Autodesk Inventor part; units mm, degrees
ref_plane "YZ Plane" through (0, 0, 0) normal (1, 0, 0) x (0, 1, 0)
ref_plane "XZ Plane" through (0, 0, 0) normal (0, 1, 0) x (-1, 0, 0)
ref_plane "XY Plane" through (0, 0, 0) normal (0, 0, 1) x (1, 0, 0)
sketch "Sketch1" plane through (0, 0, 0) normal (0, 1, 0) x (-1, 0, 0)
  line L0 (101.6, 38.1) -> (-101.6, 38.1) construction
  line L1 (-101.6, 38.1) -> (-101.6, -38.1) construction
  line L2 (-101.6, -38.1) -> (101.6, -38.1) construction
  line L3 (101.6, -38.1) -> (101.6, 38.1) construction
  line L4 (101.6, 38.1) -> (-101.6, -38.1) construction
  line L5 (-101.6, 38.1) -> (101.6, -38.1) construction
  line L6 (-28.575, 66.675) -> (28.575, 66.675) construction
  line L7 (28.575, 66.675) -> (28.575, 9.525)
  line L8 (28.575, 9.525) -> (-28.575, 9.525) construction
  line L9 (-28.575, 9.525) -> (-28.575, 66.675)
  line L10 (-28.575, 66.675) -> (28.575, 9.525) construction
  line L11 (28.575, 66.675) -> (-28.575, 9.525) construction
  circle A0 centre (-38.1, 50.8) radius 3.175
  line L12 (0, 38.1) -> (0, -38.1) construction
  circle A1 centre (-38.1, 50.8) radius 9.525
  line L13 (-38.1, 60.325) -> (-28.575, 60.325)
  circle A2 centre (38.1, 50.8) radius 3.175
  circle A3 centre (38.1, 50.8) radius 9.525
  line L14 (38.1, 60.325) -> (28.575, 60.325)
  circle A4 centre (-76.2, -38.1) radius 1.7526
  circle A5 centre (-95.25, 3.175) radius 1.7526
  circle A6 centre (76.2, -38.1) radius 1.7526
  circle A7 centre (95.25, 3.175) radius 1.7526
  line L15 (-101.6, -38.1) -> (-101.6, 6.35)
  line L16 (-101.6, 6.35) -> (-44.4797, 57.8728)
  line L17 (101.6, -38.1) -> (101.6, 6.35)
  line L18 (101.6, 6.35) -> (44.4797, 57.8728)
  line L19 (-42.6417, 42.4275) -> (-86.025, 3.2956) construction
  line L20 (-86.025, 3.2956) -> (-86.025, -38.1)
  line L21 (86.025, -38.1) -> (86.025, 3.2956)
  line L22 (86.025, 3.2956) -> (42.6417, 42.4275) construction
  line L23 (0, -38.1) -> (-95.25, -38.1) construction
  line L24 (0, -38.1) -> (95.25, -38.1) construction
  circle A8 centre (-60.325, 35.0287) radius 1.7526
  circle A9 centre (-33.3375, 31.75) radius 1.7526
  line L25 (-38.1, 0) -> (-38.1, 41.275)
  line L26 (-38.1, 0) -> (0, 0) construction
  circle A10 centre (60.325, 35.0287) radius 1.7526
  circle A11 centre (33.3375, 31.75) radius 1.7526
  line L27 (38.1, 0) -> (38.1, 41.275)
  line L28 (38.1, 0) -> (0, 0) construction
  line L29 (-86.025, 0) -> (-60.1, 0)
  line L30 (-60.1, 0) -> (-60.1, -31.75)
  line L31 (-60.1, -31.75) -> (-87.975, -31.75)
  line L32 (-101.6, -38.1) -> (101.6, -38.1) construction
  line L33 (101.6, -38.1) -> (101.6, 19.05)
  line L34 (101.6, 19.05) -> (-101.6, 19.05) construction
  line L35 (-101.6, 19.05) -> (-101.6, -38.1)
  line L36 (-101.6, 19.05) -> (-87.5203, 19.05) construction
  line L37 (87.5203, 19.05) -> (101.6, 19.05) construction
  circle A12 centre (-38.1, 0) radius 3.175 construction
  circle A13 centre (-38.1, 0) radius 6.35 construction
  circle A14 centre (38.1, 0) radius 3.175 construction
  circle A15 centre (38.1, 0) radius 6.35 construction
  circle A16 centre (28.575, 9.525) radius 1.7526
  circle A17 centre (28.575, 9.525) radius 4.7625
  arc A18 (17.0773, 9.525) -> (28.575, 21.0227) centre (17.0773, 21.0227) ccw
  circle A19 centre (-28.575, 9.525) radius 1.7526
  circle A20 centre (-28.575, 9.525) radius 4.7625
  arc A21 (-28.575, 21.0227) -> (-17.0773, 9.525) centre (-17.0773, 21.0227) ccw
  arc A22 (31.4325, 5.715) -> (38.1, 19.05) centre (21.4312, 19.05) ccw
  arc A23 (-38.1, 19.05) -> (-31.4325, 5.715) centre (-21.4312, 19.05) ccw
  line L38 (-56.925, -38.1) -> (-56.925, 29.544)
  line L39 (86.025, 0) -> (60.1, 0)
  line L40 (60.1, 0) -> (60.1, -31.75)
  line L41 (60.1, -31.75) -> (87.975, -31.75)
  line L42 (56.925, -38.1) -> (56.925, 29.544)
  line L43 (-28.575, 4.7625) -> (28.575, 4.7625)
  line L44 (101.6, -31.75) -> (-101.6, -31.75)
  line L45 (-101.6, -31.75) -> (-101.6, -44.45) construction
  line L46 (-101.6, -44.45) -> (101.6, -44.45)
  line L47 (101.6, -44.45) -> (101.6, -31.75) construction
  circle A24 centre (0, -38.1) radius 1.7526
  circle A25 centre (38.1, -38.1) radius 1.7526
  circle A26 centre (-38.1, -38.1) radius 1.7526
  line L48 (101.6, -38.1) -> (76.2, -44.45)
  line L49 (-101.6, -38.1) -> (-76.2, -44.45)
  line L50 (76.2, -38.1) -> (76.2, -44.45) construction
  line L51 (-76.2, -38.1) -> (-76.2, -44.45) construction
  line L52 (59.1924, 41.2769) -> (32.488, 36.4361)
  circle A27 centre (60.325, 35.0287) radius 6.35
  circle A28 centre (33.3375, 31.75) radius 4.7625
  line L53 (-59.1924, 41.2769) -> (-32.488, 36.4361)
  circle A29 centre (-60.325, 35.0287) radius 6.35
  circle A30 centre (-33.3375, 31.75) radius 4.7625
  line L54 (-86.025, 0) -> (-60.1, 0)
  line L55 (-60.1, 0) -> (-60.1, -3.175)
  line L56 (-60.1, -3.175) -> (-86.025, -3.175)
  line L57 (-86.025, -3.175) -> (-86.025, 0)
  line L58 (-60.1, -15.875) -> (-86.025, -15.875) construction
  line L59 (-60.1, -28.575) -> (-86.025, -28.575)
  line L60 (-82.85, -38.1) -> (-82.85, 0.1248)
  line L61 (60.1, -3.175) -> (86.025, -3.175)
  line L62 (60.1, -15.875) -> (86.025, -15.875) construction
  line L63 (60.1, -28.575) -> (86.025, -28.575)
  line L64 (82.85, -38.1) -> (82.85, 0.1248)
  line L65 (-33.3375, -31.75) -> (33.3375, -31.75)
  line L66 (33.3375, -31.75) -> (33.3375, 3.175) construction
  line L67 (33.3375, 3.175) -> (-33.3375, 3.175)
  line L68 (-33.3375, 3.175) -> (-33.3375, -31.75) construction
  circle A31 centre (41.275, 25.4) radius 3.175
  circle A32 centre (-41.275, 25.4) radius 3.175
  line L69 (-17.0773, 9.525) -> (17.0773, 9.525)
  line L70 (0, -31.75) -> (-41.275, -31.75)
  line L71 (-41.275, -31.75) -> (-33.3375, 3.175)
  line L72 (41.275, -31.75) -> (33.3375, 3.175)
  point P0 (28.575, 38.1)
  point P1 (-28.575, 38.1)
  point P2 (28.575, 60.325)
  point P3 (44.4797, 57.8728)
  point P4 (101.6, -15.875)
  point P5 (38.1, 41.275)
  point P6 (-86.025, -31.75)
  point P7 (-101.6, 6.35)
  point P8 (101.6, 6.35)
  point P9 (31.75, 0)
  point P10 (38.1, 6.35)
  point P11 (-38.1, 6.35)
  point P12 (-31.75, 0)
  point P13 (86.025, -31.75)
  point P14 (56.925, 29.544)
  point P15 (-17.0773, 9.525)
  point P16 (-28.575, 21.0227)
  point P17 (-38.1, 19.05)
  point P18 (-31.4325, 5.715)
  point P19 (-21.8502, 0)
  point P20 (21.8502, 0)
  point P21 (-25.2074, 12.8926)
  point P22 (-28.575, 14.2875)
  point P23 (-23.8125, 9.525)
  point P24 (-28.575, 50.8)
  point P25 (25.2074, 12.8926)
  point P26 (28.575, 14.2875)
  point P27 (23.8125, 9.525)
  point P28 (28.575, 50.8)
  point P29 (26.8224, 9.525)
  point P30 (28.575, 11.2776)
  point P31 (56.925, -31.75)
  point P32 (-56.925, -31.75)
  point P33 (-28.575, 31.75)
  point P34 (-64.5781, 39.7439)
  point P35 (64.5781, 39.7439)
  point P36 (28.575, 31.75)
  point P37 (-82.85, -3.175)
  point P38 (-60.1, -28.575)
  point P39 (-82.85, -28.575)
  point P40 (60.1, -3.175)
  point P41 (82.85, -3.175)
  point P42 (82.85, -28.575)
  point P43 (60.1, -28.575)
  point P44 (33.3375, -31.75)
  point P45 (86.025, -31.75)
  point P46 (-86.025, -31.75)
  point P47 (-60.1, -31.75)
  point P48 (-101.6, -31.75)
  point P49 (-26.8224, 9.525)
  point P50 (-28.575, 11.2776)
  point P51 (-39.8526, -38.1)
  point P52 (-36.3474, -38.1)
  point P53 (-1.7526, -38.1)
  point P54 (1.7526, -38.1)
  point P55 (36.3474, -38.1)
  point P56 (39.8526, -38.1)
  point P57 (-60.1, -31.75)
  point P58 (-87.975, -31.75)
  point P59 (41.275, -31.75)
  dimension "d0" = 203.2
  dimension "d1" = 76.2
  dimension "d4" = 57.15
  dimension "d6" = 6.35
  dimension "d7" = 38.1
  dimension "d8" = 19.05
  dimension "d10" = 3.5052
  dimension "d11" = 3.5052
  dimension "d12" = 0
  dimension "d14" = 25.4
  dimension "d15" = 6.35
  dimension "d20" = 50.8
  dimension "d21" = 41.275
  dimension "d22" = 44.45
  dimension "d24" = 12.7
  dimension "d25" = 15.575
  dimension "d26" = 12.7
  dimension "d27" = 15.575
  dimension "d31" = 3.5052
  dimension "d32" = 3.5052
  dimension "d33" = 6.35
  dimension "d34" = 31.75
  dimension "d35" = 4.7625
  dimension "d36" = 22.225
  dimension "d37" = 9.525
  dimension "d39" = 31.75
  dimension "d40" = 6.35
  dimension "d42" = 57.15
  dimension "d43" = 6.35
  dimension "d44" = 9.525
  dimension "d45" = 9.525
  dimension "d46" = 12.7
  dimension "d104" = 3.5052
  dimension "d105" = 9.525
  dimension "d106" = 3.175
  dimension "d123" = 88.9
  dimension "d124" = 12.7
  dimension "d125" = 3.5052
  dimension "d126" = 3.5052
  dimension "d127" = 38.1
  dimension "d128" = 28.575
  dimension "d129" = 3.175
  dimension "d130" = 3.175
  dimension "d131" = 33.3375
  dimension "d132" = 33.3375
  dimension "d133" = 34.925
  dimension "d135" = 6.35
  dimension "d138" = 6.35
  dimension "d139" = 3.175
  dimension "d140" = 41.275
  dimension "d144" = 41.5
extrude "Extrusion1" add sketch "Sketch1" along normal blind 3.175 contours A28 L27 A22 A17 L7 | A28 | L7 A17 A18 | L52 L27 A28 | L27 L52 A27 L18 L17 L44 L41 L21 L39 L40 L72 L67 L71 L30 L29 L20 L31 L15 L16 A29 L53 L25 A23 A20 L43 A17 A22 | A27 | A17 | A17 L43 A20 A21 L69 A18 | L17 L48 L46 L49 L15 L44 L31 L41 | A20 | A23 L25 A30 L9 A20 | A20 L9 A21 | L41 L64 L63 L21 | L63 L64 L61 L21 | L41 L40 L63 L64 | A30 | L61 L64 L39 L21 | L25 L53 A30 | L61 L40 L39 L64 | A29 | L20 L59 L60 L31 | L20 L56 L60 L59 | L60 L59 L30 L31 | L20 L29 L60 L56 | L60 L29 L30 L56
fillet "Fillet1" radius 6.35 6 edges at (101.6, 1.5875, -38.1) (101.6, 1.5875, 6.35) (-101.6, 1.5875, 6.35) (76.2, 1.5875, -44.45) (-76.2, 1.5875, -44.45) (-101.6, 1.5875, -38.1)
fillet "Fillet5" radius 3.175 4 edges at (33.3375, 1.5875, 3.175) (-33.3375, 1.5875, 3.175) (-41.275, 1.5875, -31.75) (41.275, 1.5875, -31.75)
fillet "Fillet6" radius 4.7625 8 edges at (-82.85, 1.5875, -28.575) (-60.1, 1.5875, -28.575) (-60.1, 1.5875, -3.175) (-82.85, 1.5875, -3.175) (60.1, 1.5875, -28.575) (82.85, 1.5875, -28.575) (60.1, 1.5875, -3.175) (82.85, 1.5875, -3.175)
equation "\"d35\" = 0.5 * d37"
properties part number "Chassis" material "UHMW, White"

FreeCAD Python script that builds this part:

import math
import FreeCAD as App
import Part
import Sketcher
from FreeCAD import Vector
Q = App.Units.Quantity


def edges_at(feature, points):
    """Names of the edges that pass closest to the given points."""
    edges = feature.Shape.Edges
    near = lambda p: min(range(len(edges)), key=lambda i: edges[i].distToShape(Part.Vertex(*p))[0])
    return sorted({f"Edge{near(p) + 1}" for p in points})


def add_polygon(sketch, points):
    """Adds a closed chain of lines whose ends are joined by coincident constraints."""
    first, n = sketch.GeometryCount, len(points)
    for a, b in zip(points, points[1:] + points[:1]):
        sketch.addGeometry(Part.LineSegment(App.Vector(*a, 0), App.Vector(*b, 0)), False)
    for i in range(n):
        sketch.addConstraint(Sketcher.Constraint("Coincident", first + i, 2, first + (i + 1) % n, 1))

doc = App.newDocument("Part")
params = doc.addObject("Spreadsheet::Sheet", "Params")
for row, (alias, value) in enumerate([
    ("sketch1_diameter", "0.25 in"),
    ("sketch1_height", "1 in"),
    ("sketch1_radius", "0.25 in"),
    ("sketch1_diameter2", "0.138 in"),
    ("sketch1_radius2", "0.1875 in"),
    ("pad1_length", "0.125 in"),
    ("fillet_radius", "0.25 in"),
    ("fillet2_radius", "0.125 in"),
    ("fillet3_radius", "0.1875 in"),
], start=1):
    params.set(f"A{row}", alias)
    params.set(f"B{row}", "=" + value)
    params.setAlias(f"B{row}", alias)

body = doc.addObject("PartDesign::Body", "Body")

# Sketch on XZ plane
sketch1 = body.newObject("Sketcher::SketchObject", "Sketch")
sketch1.AttachmentSupport = (doc.getObject("XZ_Plane"), [""])
sketch1.MapMode = "FlatFace"
sketch1.addGeometry(Part.LineSegment(Vector(-28.6, 31.8, 0), Vector(-28.6, 21, 0)), False)  # 0
sketch1.addGeometry(Part.ArcOfCircle(Part.Circle(Vector(-17.1, 21, 0), Vector(0, 0, 1), 11.5), math.radians(180), math.radians(270)), False)  # 1
sketch1.addGeometry(Part.LineSegment(Vector(-17.1, 9.5, 0), Vector(17.1, 9.5, 0)), False)  # 2
sketch1.addGeometry(Part.ArcOfCircle(Part.Circle(Vector(17.1, 21, 0), Vector(0, 0, 1), 11.5), math.radians(-90), math.radians(0)), False)  # 3
sketch1.addGeometry(Part.LineSegment(Vector(28.6, 21, 0), Vector(28.6, 31.8, 0)), False)  # 4
sketch1.addGeometry(Part.ArcOfCircle(Part.Circle(Vector(33.3, 31.8, 0), Vector(0, 0, 1), 4.8), math.radians(100), math.radians(180)), False)  # 5
sketch1.addGeometry(Part.LineSegment(Vector(32.5, 36.4, 0), Vector(59.2, 41.3, 0)), False)  # 6
sketch1.addGeometry(Part.ArcOfCircle(Part.Circle(Vector(60.3, 35, 0), Vector(0, 0, 1), 6.3), math.radians(48), math.radians(100)), False)  # 7
sketch1.addGeometry(Part.LineSegment(Vector(64.6, 39.7, 0), Vector(101.6, 6.3, 0)), False)  # 8
sketch1.addGeometry(Part.LineSegment(Vector(101.6, 6.3, 0), Vector(101.6, -38.1, 0)), False)  # 9
sketch1.addGeometry(Part.LineSegment(Vector(101.6, -38.1, 0), Vector(76.2, -44.5, 0)), False)  # 10
sketch1.addGeometry(Part.LineSegment(Vector(76.2, -44.5, 0), Vector(-76.2, -44.5, 0)), False)  # 11
sketch1.addGeometry(Part.LineSegment(Vector(-76.2, -44.5, 0), Vector(-101.6, -38.1, 0)), False)  # 12
sketch1.addGeometry(Part.LineSegment(Vector(-101.6, -38.1, 0), Vector(-101.6, 6.3, 0)), False)  # 13
sketch1.addGeometry(Part.LineSegment(Vector(-101.6, 6.3, 0), Vector(-64.6, 39.7, 0)), False)  # 14
sketch1.addGeometry(Part.ArcOfCircle(Part.Circle(Vector(-60.3, 35, 0), Vector(0, 0, 1), 6.3), math.radians(80), math.radians(132)), False)  # 15
sketch1.addGeometry(Part.LineSegment(Vector(-59.2, 41.3, 0), Vector(-32.5, 36.4, 0)), False)  # 16
sketch1.addGeometry(Part.ArcOfCircle(Part.Circle(Vector(-33.3, 31.8, 0), Vector(0, 0, 1), 4.8), math.radians(0), math.radians(80)), False)  # 17
sketch1.addGeometry(Part.Circle(Vector(-33.3, 31.8, 0), Vector(0, 0, 1), 1.8), False)  # 18
add_polygon(sketch1, [(-60.1, -28.6), (-60.1, -3.2), (-82.8, -3.2), (-82.8, -28.6)])  # lines 19-22
add_polygon(sketch1, [(-33.3, 3.2), (-41.3, -31.8), (41.3, -31.8), (33.3, 3.2)])  # lines 23-26
add_polygon(sketch1, [(60.1, -3.2), (60.1, -28.6), (82.8, -28.6), (82.8, -3.2)])  # lines 27-30
sketch1.addGeometry(Part.Circle(Vector(41.3, 25.4, 0), Vector(0, 0, 1), 3.2), False)  # 31
sketch1.addGeometry(Part.Circle(Vector(-41.3, 25.4, 0), Vector(0, 0, 1), 3.2), False)  # 32
sketch1.addGeometry(Part.Circle(Vector(95.2, 3.2, 0), Vector(0, 0, 1), 1.8), False)  # 33
sketch1.addGeometry(Part.Circle(Vector(-95.2, 3.2, 0), Vector(0, 0, 1), 1.8), False)  # 34
sketch1.addGeometry(Part.Circle(Vector(-28.6, 9.5, 0), Vector(0, 0, 1), 1.8), False)  # 35
sketch1.addGeometry(Part.Circle(Vector(-60.3, 35, 0), Vector(0, 0, 1), 1.8), False)  # 36
sketch1.addGeometry(Part.Circle(Vector(-38.1, -38.1, 0), Vector(0, 0, 1), 1.8), False)  # 37
sketch1.addGeometry(Part.Circle(Vector(-76.2, -38.1, 0), Vector(0, 0, 1), 1.8), False)  # 38
sketch1.addGeometry(Part.Circle(Vector(76.2, -38.1, 0), Vector(0, 0, 1), 1.8), False)  # 39
sketch1.addGeometry(Part.Circle(Vector(38.1, -38.1, 0), Vector(0, 0, 1), 1.8), False)  # 40
sketch1.addGeometry(Part.Circle(Vector(0, -38.1, 0), Vector(0, 0, 1), 1.8), False)  # 41
sketch1.addGeometry(Part.Circle(Vector(60.3, 35, 0), Vector(0, 0, 1), 1.8), False)  # 42
sketch1.addGeometry(Part.Circle(Vector(28.6, 9.5, 0), Vector(0, 0, 1), 1.8), False)  # 43
sketch1.addGeometry(Part.Circle(Vector(33.3, 31.8, 0), Vector(0, 0, 1), 1.8), False)  # 44
sketch1.addConstraint([
    Sketcher.Constraint("Tangent", 0, 2, 1, 1),
    Sketcher.Constraint("Tangent", 1, 2, 2, 1),
    Sketcher.Constraint("Tangent", 2, 2, 3, 1),
    Sketcher.Constraint("Tangent", 3, 2, 4, 1),
    Sketcher.Constraint("Tangent", 4, 2, 5, 2),
    Sketcher.Constraint("Tangent", 5, 1, 6, 1),
    Sketcher.Constraint("Tangent", 6, 2, 7, 2),
    Sketcher.Constraint("Tangent", 7, 1, 8, 1),
    Sketcher.Constraint("Coincident", 8, 2, 9, 1),
    Sketcher.Constraint("Coincident", 9, 2, 10, 1),
    Sketcher.Constraint("Coincident", 10, 2, 11, 1),
    Sketcher.Constraint("Coincident", 11, 2, 12, 1),
    Sketcher.Constraint("Coincident", 12, 2, 13, 1),
    Sketcher.Constraint("Coincident", 13, 2, 14, 1),
    Sketcher.Constraint("Tangent", 14, 2, 15, 2),
    Sketcher.Constraint("Tangent", 15, 1, 16, 1),
    Sketcher.Constraint("Tangent", 16, 2, 17, 2),
    Sketcher.Constraint("Tangent", 17, 1, 0, 1),
    Sketcher.Constraint("Vertical", 0),
    Sketcher.Constraint("Horizontal", 2),
    Sketcher.Constraint("Vertical", 4),
    Sketcher.Constraint("Vertical", 9),
    Sketcher.Constraint("Horizontal", 11),
    Sketcher.Constraint("Vertical", 13),
    Sketcher.Constraint("Vertical", 19),
    Sketcher.Constraint("Horizontal", 20),
    Sketcher.Constraint("Vertical", 21),
    Sketcher.Constraint("Horizontal", 22),
    Sketcher.Constraint("Horizontal", 24),
    Sketcher.Constraint("Horizontal", 26),
    Sketcher.Constraint("Vertical", 27),
    Sketcher.Constraint("Horizontal", 28),
    Sketcher.Constraint("Vertical", 29),
    Sketcher.Constraint("Horizontal", 30),
    Sketcher.Constraint("Coincident", 18, 3, 17, 3),
    Sketcher.Constraint("Coincident", 36, 3, 15, 3),
    Sketcher.Constraint("Coincident", 42, 3, 7, 3),
    Sketcher.Constraint("Coincident", 44, 3, 5, 3),
    Sketcher.Constraint("Equal", 1, 3),
    Sketcher.Constraint("Equal", 7, 15),
    Sketcher.Constraint("Equal", 5, 17),
    Sketcher.Constraint("Equal", 31, 32),
    Sketcher.Constraint("Equal", 18, 33),
    Sketcher.Constraint("Equal", 33, 34),
    Sketcher.Constraint("Equal", 34, 35),
    Sketcher.Constraint("Equal", 35, 36),
    Sketcher.Constraint("Equal", 36, 37),
    Sketcher.Constraint("Equal", 37, 38),
    Sketcher.Constraint("Equal", 38, 39),
    Sketcher.Constraint("Equal", 39, 40),
    Sketcher.Constraint("Equal", 40, 41),
    Sketcher.Constraint("Equal", 41, 42),
    Sketcher.Constraint("Equal", 42, 43),
    Sketcher.Constraint("Equal", 43, 44),
    Sketcher.Constraint("Symmetric", 7, 3, 15, 3, -2),
    Sketcher.Constraint("Symmetric", 5, 3, 17, 3, -2),
    Sketcher.Constraint("Symmetric", 31, 3, 32, 3, -2),
    Sketcher.Constraint("Symmetric", 33, 3, 34, 3, -2),
    Sketcher.Constraint("Symmetric", 38, 3, 39, 3, -2),
    Sketcher.Constraint("Symmetric", 37, 3, 40, 3, -2),
    Sketcher.Constraint("Symmetric", 35, 3, 43, 3, -2),
    Sketcher.Constraint("Symmetric", 9, 2, 12, 2, -2),
    Sketcher.Constraint("Symmetric", 22, 2, 27, 2, -2),
    Sketcher.Constraint("Symmetric", 20, 2, 29, 2, -2),
    Sketcher.Constraint("PointOnObject", 41, 3, -2),
    Sketcher.Constraint("Horizontal", 37, 3, 38, 3),
    Sketcher.Constraint("Horizontal", 40, 3, 41, 3),
    Sketcher.Constraint("Horizontal", 43, 3, 1, 2),
    Sketcher.Constraint("Horizontal", 41, 3, 9, 2),
    Sketcher.Constraint("Horizontal", 8, 2, 13, 2),
    Sketcher.Constraint("Horizontal", 34, 3, 25, 2),
    Sketcher.Constraint("Vertical", 35, 3, 0, 2),
    Sketcher.Constraint("Vertical", 39, 3, 10, 2),
    Sketcher.Constraint("Vertical", 38, 3, 11, 2),
    Sketcher.Constraint("Vertical", 32, 3, 23, 2),
    Sketcher.Constraint("Vertical", 31, 3, 24, 2),
    Sketcher.Constraint("Vertical", 44, 3, 25, 2),
    Sketcher.Constraint("Vertical", 18, 3, 26, 2),
    Sketcher.Constraint("Diameter", 31, Q("0.25 in")),
    Sketcher.Constraint("DistanceY", 19, 1, 19, 2, Q("1 in")),
    Sketcher.Constraint("Radius", 7, Q("0.25 in")),
    Sketcher.Constraint("Diameter", 18, Q("0.138 in")),
    Sketcher.Constraint("DistanceY", -1, 1, 31, 3, Q("1 in")),
    Sketcher.Constraint("DistanceX", 38, 3, -1, 1, Q("3 in")),
    Sketcher.Constraint("Radius", 5, Q("0.1875 in")),
    Sketcher.Constraint("DistanceX", 39, 3, 8, 2, Q("1 in")),
    Sketcher.Constraint("DistanceY", 10, 2, 8, 2, Q("2 in")),
    Sketcher.Constraint("DistanceY", 9, 2, 9, 1, Q("1.75 in")),
    Sketcher.Constraint("DistanceX", 37, 3, -1, 1, Q("1.5 in")),
    Sketcher.Constraint("DistanceY", 37, 3, -1, 1, Q("1.5 in")),
    Sketcher.Constraint("DistanceX", 32, 3, 35, 3, Q("0.5 in")),
    Sketcher.Constraint("DistanceY", 19, 2, 35, 3, Q("0.5 in")),
    Sketcher.Constraint("DistanceY", 11, 2, 23, 2, Q("0.5 in")),
    Sketcher.Constraint("DistanceY", -1, 1, 5, 3, Q("1.25 in")),
    Sketcher.Constraint("DistanceX", 31, 3, 7, 3, Q("0.75 in")),
    Sketcher.Constraint("DistanceX", 34, 3, 38, 3, Q("0.75 in")),
    Sketcher.Constraint("DistanceY", 19, 2, 34, 3, Q("0.25 in")),
    Sketcher.Constraint("DistanceX", -1, 1, 5, 3, Q("1.3125 in")),
    Sketcher.Constraint("DistanceY", -1, 1, 33, 3, Q("0.125 in")),
    Sketcher.Constraint("Angle", 8, Q("-42.0506 deg")),
    Sketcher.Constraint("Radius", 1, 11.4977),
    Sketcher.Constraint("DistanceX", 20, 2, 20, 1, 22.75),
    Sketcher.Constraint("DistanceX", 20, 2, -1, 1, Q("3.2618 in")),
])
sketch1.setExpression("Constraints[90]", "Params.sketch1_diameter")
sketch1.setExpression("Constraints[91]", "Params.sketch1_height")
sketch1.setExpression("Constraints[92]", "Params.sketch1_radius")
sketch1.setExpression("Constraints[93]", "Params.sketch1_diameter2")
sketch1.setExpression("Constraints[96]", "Params.sketch1_radius2")
pad1 = body.newObject("PartDesign::Pad", "Pad")
pad1.Profile = sketch1
pad1.setExpression("Length", "Params.pad1_length")
pad1.Reversed = True
doc.recompute()

fillet = body.newObject("PartDesign::Fillet", "Fillet")
fillet.Base = (pad1, edges_at(pad1, [
    (101.6, 1.587, -38.1),
    (101.6, 1.587, 6.35),
    (-101.6, 1.587, 6.35),
    (76.2, 1.587, -44.45),
    (-76.2, 1.587, -44.45),
    (-101.6, 1.587, -38.1),
]))
fillet.setExpression("Radius", "Params.fillet_radius")
doc.recompute()

fillet2 = body.newObject("PartDesign::Fillet", "Fillet001")
fillet2.Base = (fillet, edges_at(fillet, [
    (33.337, 1.587, 3.175),
    (-33.337, 1.587, 3.175),
    (-41.275, 1.587, -31.75),
    (41.275, 1.587, -31.75),
]))
fillet2.setExpression("Radius", "Params.fillet2_radius")
doc.recompute()

fillet3 = body.newObject("PartDesign::Fillet", "Fillet002")
fillet3.Base = (fillet2, edges_at(fillet2, [
    (-82.85, 1.587, -28.575),
    (-60.1, 1.587, -28.575),
    (-60.1, 1.587, -3.175),
    (-82.85, 1.587, -3.175),
    (60.1, 1.587, -28.575),
    (82.85, 1.587, -28.575),
    (60.1, 1.587, -3.175),
    (82.85, 1.587, -3.175),
]))
fillet3.setExpression("Radius", "Params.fillet3_radius")

doc.recompute()
